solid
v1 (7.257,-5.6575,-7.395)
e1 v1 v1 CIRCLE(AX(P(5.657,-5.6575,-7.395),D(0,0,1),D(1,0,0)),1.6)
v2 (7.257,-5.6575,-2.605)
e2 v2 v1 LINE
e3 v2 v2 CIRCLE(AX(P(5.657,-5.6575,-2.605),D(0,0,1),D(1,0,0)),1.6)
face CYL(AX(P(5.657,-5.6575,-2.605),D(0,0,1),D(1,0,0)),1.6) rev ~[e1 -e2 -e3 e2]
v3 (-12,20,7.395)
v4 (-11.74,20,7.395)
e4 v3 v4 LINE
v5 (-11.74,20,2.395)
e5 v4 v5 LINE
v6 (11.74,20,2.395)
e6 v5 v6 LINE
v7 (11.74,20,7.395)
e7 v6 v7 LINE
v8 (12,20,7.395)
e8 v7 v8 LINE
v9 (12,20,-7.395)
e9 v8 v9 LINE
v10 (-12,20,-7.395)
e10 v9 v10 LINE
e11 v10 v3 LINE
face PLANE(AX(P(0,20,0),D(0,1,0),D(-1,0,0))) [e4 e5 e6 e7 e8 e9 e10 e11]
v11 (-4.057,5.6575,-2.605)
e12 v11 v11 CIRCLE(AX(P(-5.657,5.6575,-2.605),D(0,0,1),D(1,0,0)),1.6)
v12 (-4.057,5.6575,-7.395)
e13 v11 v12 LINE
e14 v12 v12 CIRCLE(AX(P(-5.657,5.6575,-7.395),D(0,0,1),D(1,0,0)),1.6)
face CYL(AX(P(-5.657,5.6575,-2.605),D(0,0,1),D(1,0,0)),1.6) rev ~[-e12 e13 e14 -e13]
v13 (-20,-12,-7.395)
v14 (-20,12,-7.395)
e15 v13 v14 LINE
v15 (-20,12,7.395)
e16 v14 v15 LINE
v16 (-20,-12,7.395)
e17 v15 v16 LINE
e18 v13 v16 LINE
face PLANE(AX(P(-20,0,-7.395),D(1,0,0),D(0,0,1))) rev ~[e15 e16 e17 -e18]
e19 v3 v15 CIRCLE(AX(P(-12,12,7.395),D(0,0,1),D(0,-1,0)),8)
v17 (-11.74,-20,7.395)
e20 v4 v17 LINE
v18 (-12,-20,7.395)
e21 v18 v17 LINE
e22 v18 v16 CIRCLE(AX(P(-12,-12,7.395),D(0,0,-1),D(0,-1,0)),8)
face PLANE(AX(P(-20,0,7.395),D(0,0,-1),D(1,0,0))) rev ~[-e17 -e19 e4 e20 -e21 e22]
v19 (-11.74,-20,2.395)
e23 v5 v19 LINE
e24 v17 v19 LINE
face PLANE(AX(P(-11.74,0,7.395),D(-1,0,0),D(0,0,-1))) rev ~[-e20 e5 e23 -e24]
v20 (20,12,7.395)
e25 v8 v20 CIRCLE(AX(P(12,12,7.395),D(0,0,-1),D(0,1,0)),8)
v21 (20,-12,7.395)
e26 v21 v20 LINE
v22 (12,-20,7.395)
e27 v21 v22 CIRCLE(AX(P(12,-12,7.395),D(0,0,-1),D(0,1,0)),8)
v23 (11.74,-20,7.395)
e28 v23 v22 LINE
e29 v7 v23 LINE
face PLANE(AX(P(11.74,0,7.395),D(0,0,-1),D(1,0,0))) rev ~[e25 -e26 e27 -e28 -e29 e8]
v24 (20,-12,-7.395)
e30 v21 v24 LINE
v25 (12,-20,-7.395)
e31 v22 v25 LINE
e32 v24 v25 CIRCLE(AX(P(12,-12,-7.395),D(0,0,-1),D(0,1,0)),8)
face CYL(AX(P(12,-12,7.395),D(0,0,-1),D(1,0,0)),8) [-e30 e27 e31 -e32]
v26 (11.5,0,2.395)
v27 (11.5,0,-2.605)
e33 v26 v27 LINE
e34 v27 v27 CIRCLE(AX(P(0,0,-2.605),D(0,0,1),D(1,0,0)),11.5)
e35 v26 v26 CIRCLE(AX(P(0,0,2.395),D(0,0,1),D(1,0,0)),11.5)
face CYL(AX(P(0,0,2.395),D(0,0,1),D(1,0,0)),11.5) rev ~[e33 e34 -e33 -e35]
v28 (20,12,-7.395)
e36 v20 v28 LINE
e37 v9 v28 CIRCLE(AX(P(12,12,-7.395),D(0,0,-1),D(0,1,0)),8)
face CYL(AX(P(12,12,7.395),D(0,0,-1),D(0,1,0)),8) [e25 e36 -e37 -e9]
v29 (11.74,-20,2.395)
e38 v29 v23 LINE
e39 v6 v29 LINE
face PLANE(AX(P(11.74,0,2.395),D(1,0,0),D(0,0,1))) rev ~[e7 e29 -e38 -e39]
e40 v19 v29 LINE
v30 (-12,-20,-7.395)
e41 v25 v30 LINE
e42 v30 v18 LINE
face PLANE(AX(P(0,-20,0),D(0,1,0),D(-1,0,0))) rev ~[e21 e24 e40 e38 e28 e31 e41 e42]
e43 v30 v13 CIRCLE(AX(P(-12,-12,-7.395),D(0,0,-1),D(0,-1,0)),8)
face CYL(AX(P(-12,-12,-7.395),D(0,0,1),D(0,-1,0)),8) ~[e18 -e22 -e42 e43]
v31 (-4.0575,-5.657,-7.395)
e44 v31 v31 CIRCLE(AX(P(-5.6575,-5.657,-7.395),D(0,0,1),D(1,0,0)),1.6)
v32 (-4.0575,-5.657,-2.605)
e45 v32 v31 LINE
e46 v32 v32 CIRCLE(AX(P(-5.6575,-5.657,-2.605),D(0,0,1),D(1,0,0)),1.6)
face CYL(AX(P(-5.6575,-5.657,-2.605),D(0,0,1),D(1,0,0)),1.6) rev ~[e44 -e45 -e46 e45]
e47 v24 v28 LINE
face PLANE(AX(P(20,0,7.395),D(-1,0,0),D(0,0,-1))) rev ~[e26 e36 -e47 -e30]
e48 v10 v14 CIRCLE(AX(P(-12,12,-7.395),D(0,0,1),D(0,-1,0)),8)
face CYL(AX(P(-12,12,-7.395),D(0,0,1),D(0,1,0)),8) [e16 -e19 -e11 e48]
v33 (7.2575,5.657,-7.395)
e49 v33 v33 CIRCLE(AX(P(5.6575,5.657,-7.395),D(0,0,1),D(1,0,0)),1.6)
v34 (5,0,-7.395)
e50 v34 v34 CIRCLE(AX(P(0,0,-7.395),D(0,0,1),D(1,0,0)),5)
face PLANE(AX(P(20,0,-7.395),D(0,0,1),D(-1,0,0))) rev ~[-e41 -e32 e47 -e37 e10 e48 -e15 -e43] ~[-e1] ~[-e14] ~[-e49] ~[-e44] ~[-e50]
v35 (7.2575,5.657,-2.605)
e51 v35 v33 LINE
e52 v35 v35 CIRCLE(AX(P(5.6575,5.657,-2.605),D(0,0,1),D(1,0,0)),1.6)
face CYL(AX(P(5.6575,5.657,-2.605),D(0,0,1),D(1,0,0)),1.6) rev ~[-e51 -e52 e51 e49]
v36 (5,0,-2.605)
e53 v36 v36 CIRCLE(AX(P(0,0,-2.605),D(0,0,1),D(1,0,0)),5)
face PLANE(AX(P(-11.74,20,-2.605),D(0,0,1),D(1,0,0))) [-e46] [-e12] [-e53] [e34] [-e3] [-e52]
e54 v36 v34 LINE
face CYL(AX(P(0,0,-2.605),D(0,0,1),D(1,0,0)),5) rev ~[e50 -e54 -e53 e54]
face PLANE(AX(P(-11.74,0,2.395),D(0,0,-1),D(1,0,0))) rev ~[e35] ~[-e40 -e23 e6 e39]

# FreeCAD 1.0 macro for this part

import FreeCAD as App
import Part
import Sketcher


def edges_at(feature, points):
    """Names of the edges that pass closest to the given points."""
    edges = feature.Shape.Edges
    near = lambda p: min(range(len(edges)), key=lambda i: edges[i].distToShape(Part.Vertex(*p))[0])
    return sorted({f"Edge{near(p) + 1}" for p in points})

doc = App.newDocument("Part")
body = doc.addObject("PartDesign::Body", "Body")

# Sketch on XZ plane
sketch1 = body.newObject("Sketcher::SketchObject", "Sketch")
sketch1.AttachmentSupport = (doc.getObject("XZ_Plane"), [""])
sketch1.MapMode = "FlatFace"
sketch1.addGeometry([
    Part.LineSegment(App.Vector(12, 7, 0), App.Vector(20, 7, 0)),  # 0
    Part.LineSegment(App.Vector(20, 7, 0), App.Vector(20, -7, 0)),  # 1
    Part.LineSegment(App.Vector(20, -7, 0), App.Vector(-20, -7, 0)),  # 2
    Part.LineSegment(App.Vector(-20, -7, 0), App.Vector(-20, 7, 0)),  # 3
    Part.LineSegment(App.Vector(-20, 7, 0), App.Vector(-12, 7, 0)),  # 4
    Part.LineSegment(App.Vector(-12, 7, 0), App.Vector(-12, 2, 0)),  # 5
    Part.LineSegment(App.Vector(-12, 2, 0), App.Vector(12, 2, 0)),  # 6
    Part.LineSegment(App.Vector(12, 2, 0), App.Vector(12, 7, 0)),  # 7
], False)
sketch1.addConstraint([
    Sketcher.Constraint("Coincident", 0, 2, 1, 1),
    Sketcher.Constraint("Coincident", 1, 2, 2, 1),
    Sketcher.Constraint("Coincident", 2, 2, 3, 1),
    Sketcher.Constraint("Coincident", 3, 2, 4, 1),
    Sketcher.Constraint("Coincident", 4, 2, 5, 1),
    Sketcher.Constraint("Coincident", 5, 2, 6, 1),
    Sketcher.Constraint("Coincident", 6, 2, 7, 1),
    Sketcher.Constraint("Coincident", 7, 2, 0, 1),
    Sketcher.Constraint("Horizontal", 0),
    Sketcher.Constraint("Vertical", 1),
    Sketcher.Constraint("Horizontal", 2),
    Sketcher.Constraint("Vertical", 3),
    Sketcher.Constraint("Horizontal", 4),
    Sketcher.Constraint("Vertical", 5),
    Sketcher.Constraint("Horizontal", 6),
    Sketcher.Constraint("Vertical", 7),
    Sketcher.Constraint("Symmetric", 0, 2, 2, 2, -1, 1),
    Sketcher.Constraint("Symmetric", 4, 2, 7, 2, -2),
    Sketcher.Constraint("DistanceX", 2, 2, 2, 1, 40.0),
    Sketcher.Constraint("DistanceY", 5, 2, 5, 1, 5.0),
    Sketcher.Constraint("DistanceX", 0, 1, 0, 2, 8.26),
    Sketcher.Constraint("DistanceY", 1, 2, 1, 1, 14.79),
])
pad1 = body.newObject("PartDesign::Pad", "Pad")
pad1.Profile = sketch1
pad1.Length = 40
pad1.Midplane = True

# Sketch on XY plane
sketch2 = body.newObject("Sketcher::SketchObject", "Sketch001")
sketch2.AttachmentSupport = (doc.getObject("XY_Plane"), [""])
sketch2.MapMode = "FlatFace"
sketch2.AttachmentOffset = App.Placement(App.Vector(0, 0, 2.395), App.Rotation())
sketch2.addGeometry(Part.Circle(App.Vector(0, 0, 0), App.Vector(0, 0, 1), 12), False)
sketch2.addConstraint([
    Sketcher.Constraint("Coincident", 0, 3, -1, 1),
    Sketcher.Constraint("Diameter", 0, 23.0),
])
pocket1 = body.newObject("PartDesign::Pocket", "Pocket")
pocket1.Profile = sketch2
pocket1.Length = 5

# Sketch on XY plane
sketch3 = body.newObject("Sketcher::SketchObject", "Sketch002")
sketch3.AttachmentSupport = (doc.getObject("XY_Plane"), [""])
sketch3.MapMode = "FlatFace"
sketch3.AttachmentOffset = App.Placement(App.Vector(0, 0, -2.605), App.Rotation())
sketch3.addGeometry(Part.Circle(App.Vector(0, 0, 0), App.Vector(0, 0, 1), 5), False)
sketch3.addConstraint([
    Sketcher.Constraint("Coincident", 0, 3, -1, 1),
    Sketcher.Constraint("Diameter", 0, 10.0),
])
pocket2 = body.newObject("PartDesign::Pocket", "Pocket001")
pocket2.Profile = sketch3
pocket2.Type = "UpToFirst"

# Sketch on XY plane
sketch4 = body.newObject("Sketcher::SketchObject", "Sketch003")
sketch4.AttachmentSupport = (doc.getObject("XY_Plane"), [""])
sketch4.MapMode = "FlatFace"
sketch4.AttachmentOffset = App.Placement(App.Vector(0, 0, -2.605), App.Rotation())
sketch4.addGeometry([
    Part.Circle(App.Vector(-5.7, 5.7, 0), App.Vector(0, 0, 1), 1.6),
    Part.Circle(App.Vector(-5.7, -5.7, 0), App.Vector(0, 0, 1), 1.6),
    Part.Circle(App.Vector(5.7, -5.7, 0), App.Vector(0, 0, 1), 1.6),
    Part.Circle(App.Vector(5.7, 5.7, 0), App.Vector(0, 0, 1), 1.6),
], False)
sketch4.addConstraint([
    Sketcher.Constraint("Equal", 0, 1),
    Sketcher.Constraint("Equal", 1, 2),
    Sketcher.Constraint("Equal", 2, 3),
    Sketcher.Constraint("Symmetric", 0, 3, 2, 3, -1, 1),
    Sketcher.Constraint("Symmetric", 1, 3, 3, 3, -1, 1),
    Sketcher.Constraint("Diameter", 0, 3.2),
    Sketcher.Constraint("DistanceX", 0, 3, -1, 1, 5.657),
    Sketcher.Constraint("DistanceY", 1, 3, -1, 1, 5.657),
    Sketcher.Constraint("DistanceY", -1, 1, 0, 3, 5.6575),
    Sketcher.Constraint("DistanceX", 1, 3, -1, 1, 5.6575),
])
pocket3 = body.newObject("PartDesign::Pocket", "Pocket002")
pocket3.Profile = sketch4
pocket3.Length = 4.79
doc.recompute()

fillet = body.newObject("PartDesign::Fillet", "Fillet")
fillet.Base = (pocket3, edges_at(pocket3, [
    (-20, -20, 0),
    (20, -20, 0),
    (20, 20, 0),
    (-20, 20, 0),
]))
fillet.Radius = 8

doc.recompute()
